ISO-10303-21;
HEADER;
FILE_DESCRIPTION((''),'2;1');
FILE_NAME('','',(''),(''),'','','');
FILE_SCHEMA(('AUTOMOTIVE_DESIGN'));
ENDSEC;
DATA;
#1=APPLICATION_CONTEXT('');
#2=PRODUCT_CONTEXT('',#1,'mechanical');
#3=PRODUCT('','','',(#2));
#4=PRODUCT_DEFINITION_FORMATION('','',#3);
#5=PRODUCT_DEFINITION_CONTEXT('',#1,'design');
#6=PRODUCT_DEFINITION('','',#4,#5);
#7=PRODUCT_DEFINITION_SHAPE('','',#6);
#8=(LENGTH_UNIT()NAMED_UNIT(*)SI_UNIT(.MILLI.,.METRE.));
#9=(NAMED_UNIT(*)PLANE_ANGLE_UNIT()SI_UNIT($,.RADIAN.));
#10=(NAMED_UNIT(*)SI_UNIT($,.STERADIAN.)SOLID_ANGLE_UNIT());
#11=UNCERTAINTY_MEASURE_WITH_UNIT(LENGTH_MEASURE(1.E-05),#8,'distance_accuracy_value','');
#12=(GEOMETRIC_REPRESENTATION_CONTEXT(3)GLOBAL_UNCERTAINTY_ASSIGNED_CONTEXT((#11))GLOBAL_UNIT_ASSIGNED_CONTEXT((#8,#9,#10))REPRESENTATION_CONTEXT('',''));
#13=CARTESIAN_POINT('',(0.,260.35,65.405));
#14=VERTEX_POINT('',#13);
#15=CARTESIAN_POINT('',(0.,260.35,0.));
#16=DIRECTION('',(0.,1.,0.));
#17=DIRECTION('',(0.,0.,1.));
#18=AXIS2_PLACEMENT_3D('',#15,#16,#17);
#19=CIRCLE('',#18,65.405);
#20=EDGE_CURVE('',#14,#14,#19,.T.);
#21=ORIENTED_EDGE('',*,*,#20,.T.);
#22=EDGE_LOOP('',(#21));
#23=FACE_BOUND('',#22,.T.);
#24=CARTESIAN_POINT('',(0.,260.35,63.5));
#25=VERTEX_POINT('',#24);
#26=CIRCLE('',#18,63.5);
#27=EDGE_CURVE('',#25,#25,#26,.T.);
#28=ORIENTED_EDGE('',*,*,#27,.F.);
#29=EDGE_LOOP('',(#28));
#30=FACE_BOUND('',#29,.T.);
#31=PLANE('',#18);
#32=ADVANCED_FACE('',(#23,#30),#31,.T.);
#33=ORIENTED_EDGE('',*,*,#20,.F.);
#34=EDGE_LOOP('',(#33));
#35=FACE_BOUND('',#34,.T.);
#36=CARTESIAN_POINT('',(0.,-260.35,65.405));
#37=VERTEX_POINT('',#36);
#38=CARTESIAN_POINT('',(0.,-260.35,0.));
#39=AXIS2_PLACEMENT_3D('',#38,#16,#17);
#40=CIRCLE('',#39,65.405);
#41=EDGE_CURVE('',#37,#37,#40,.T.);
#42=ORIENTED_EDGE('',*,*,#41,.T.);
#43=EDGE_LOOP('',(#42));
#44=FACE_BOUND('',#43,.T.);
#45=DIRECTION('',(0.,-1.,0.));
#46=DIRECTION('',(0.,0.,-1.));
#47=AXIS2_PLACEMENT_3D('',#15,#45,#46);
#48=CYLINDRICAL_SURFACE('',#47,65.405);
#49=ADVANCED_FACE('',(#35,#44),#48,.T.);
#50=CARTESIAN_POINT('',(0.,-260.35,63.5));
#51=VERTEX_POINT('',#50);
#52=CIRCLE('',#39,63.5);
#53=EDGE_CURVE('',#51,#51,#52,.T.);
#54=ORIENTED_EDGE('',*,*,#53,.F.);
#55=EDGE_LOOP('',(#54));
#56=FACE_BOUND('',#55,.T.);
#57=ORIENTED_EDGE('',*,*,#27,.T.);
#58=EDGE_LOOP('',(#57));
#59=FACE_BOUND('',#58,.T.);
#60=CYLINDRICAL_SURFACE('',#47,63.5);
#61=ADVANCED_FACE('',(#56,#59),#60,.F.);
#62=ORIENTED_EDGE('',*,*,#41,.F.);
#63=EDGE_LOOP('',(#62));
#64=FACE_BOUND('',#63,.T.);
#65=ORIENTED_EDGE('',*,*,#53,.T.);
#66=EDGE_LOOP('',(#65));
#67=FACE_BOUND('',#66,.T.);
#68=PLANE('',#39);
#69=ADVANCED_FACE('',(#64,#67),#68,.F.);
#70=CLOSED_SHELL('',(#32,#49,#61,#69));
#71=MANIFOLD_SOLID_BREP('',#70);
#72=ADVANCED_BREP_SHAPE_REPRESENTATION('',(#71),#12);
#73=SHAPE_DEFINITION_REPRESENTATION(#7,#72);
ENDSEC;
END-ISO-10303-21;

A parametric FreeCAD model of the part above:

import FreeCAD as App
import Part
import Sketcher

V = App.Vector
Q = App.Units.Quantity

doc = App.newDocument("Part")
body = doc.addObject("PartDesign::Body", "Body")

# Sketch on XZ plane
sketch1 = doc.addObject("Sketcher::SketchObject", "Sketch")
body.addObject(sketch1)
sketch1.AttachmentSupport = (doc.XZ_Plane, [""])
sketch1.MapMode = "FlatFace"
sketch1.addGeometry([
    Part.Circle(V(0, 0, 0), V(0, 0, 1), 65),
    Part.Circle(V(0, 0, 0), V(0, 0, 1), 64),
], False)
sketch1.addConstraint([
    Sketcher.Constraint("Coincident", 0, 3, -1, 1),
    Sketcher.Constraint("Coincident", 1, 3, -1, 1),
    Sketcher.Constraint("Diameter", 1, Q("5 in")),
    Sketcher.Constraint("Diameter", 0, Q("5.15 in")),
])
pad1 = doc.addObject("PartDesign::Pad", "Pad")
body.addObject(pad1)
pad1.Profile = sketch1
pad1.Length = Q("20.5 in")
pad1.Midplane = True

doc.recompute()
